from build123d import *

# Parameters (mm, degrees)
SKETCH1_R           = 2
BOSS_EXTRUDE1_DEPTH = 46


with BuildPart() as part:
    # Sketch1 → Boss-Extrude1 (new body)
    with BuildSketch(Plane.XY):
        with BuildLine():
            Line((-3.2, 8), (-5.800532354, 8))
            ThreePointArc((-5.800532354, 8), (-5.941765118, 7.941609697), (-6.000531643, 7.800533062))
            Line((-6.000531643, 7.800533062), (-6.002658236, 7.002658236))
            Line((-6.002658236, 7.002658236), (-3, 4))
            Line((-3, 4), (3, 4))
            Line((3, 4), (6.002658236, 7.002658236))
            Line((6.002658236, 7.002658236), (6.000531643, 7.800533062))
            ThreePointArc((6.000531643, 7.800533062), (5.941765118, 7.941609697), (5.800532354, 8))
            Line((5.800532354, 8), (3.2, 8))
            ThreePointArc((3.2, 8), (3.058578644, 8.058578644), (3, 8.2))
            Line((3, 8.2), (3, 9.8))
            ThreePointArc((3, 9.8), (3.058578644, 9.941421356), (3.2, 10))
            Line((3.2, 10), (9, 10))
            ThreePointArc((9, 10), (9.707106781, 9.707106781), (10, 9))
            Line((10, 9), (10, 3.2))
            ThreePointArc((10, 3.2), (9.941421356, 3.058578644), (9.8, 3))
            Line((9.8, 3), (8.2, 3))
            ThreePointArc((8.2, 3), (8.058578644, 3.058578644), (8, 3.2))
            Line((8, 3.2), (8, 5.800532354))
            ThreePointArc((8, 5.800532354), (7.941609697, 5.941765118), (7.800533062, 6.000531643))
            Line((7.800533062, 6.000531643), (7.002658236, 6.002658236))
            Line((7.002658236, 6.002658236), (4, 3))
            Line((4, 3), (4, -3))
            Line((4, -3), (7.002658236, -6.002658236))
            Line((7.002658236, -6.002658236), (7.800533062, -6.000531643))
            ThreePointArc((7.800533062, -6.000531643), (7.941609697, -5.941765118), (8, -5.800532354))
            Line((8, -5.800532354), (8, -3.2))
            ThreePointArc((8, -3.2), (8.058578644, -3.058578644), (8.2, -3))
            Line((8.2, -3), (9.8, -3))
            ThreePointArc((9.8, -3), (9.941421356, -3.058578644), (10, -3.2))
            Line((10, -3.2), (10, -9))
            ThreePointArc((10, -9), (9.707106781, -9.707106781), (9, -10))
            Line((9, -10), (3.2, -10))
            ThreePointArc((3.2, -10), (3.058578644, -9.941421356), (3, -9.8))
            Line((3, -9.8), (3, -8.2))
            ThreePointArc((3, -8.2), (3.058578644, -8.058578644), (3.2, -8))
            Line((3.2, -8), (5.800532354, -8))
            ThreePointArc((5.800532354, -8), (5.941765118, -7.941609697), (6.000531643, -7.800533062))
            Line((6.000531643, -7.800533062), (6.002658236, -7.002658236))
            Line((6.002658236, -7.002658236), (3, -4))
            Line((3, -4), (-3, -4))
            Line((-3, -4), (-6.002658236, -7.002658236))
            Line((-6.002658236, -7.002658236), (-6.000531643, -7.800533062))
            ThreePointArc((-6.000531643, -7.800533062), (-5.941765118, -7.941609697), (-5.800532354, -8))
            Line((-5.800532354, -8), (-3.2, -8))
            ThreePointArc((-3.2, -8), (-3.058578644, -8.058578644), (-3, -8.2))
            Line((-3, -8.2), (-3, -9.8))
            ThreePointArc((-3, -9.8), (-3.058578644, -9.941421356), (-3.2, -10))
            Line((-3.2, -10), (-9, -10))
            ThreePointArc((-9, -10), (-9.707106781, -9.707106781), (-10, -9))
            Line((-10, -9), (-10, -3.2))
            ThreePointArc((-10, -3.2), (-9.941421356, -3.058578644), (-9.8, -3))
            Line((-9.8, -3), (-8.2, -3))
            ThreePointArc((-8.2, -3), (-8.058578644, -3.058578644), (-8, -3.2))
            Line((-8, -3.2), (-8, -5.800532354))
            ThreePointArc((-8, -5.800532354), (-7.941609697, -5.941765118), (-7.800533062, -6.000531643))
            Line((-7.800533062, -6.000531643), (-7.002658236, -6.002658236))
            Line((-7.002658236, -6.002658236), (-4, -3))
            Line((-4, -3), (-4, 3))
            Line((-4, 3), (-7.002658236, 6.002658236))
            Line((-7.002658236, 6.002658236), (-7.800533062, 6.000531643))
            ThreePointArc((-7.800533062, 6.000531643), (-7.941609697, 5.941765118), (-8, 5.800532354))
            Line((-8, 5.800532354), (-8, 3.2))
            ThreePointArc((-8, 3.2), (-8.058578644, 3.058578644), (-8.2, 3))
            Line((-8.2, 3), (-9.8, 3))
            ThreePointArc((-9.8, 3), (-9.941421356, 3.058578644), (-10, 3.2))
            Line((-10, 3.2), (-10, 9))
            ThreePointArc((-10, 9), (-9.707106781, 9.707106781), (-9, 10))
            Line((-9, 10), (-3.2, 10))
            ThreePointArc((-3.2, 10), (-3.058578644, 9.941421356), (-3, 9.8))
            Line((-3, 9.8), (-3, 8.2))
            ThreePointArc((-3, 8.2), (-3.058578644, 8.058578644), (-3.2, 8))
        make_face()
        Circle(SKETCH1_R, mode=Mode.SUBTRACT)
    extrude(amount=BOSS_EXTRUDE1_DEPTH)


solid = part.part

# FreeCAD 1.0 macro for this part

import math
import FreeCAD as App
import Part
import Sketcher

V = App.Vector

doc = App.newDocument("Part")
body = doc.addObject("PartDesign::Body", "Body")

sketch1 = doc.addObject("Sketcher::SketchObject", "Sketch")
body.addObject(sketch1)
sketch1.AttachmentSupport = (doc.XY_Plane, [""])
sketch1.MapMode = "FlatFace"
sketch1.addGeometry([
    Part.LineSegment(V(-5.800532, 8, 0), V(-3.2, 8, 0)),
    Part.ArcOfCircle(Part.Circle(V(-3.2, 8.2, 0), V(0, 0, 1), 0.2), math.radians(-90), math.radians(0)),
    Part.LineSegment(V(-3, 8.2, 0), V(-3, 9.8, 0)),
    Part.ArcOfCircle(Part.Circle(V(-3.2, 9.8, 0), V(0, 0, 1), 0.2), math.radians(0), math.radians(90)),
    Part.LineSegment(V(-3.2, 10, 0), V(-9, 10, 0)),
    Part.ArcOfCircle(Part.Circle(V(-9, 9, 0), V(0, 0, 1), 1), math.radians(90), math.radians(180)),
    Part.LineSegment(V(-10, 9, 0), V(-10, 3.2, 0)),
    Part.ArcOfCircle(Part.Circle(V(-9.8, 3.2, 0), V(0, 0, 1), 0.2), math.radians(-180), math.radians(-90)),
    Part.LineSegment(V(-9.8, 3, 0), V(-8.2, 3, 0)),
    Part.ArcOfCircle(Part.Circle(V(-8.2, 3.2, 0), V(0, 0, 1), 0.2), math.radians(-90), math.radians(0)),
    Part.LineSegment(V(-8, 3.2, 0), V(-8, 5.800532, 0)),
    Part.ArcOfCircle(Part.Circle(V(-7.8, 5.800532, 0), V(0, 0, 1), 0.2), math.radians(90.152711), math.radians(180)),
    Part.LineSegment(V(-7.800533, 6.000532, 0), V(-7.002658, 6.002658, 0)),
    Part.LineSegment(V(-7.002658, 6.002658, 0), V(-4, 3, 0)),
    Part.LineSegment(V(-4, 3, 0), V(-4, -3, 0)),
    Part.LineSegment(V(-4, -3, 0), V(-7.002658, -6.002658, 0)),
    Part.LineSegment(V(-7.002658, -6.002658, 0), V(-7.800533, -6.000532, 0)),
    Part.ArcOfCircle(Part.Circle(V(-7.8, -5.800532, 0), V(0, 0, 1), 0.2), math.radians(180), math.radians(269.847289)),
    Part.LineSegment(V(-8, -5.800532, 0), V(-8, -3.2, 0)),
    Part.ArcOfCircle(Part.Circle(V(-8.2, -3.2, 0), V(0, 0, 1), 0.2), math.radians(0), math.radians(90)),
    Part.LineSegment(V(-8.2, -3, 0), V(-9.8, -3, 0)),
    Part.ArcOfCircle(Part.Circle(V(-9.8, -3.2, 0), V(0, 0, 1), 0.2), math.radians(90), math.radians(180)),
    Part.LineSegment(V(-10, -3.2, 0), V(-10, -9, 0)),
    Part.ArcOfCircle(Part.Circle(V(-9, -9, 0), V(0, 0, 1), 1), math.radians(-180), math.radians(-90)),
    Part.LineSegment(V(-9, -10, 0), V(-3.2, -10, 0)),
    Part.ArcOfCircle(Part.Circle(V(-3.2, -9.8, 0), V(0, 0, 1), 0.2), math.radians(-90), math.radians(0)),
    Part.LineSegment(V(-3, -9.8, 0), V(-3, -8.2, 0)),
    Part.ArcOfCircle(Part.Circle(V(-3.2, -8.2, 0), V(0, 0, 1), 0.2), math.radians(0), math.radians(90)),
    Part.LineSegment(V(-3.2, -8, 0), V(-5.800532, -8, 0)),
    Part.ArcOfCircle(Part.Circle(V(-5.800532, -7.8, 0), V(0, 0, 1), 0.2), math.radians(-179.847289), math.radians(-90)),
    Part.LineSegment(V(-6.000532, -7.800533, 0), V(-6.002658, -7.002658, 0)),
    Part.LineSegment(V(-6.002658, -7.002658, 0), V(-3, -4, 0)),
    Part.LineSegment(V(-3, -4, 0), V(3, -4, 0)),
    Part.LineSegment(V(3, -4, 0), V(6.002658, -7.002658, 0)),
    Part.LineSegment(V(6.002658, -7.002658, 0), V(6.000532, -7.800533, 0)),
    Part.ArcOfCircle(Part.Circle(V(5.800532, -7.8, 0), V(0, 0, 1), 0.2), math.radians(-90), math.radians(-0.152711)),
    Part.LineSegment(V(5.800532, -8, 0), V(3.2, -8, 0)),
    Part.ArcOfCircle(Part.Circle(V(3.2, -8.2, 0), V(0, 0, 1), 0.2), math.radians(90), math.radians(180)),
    Part.LineSegment(V(3, -8.2, 0), V(3, -9.8, 0)),
    Part.ArcOfCircle(Part.Circle(V(3.2, -9.8, 0), V(0, 0, 1), 0.2), math.radians(-180), math.radians(-90)),
    Part.LineSegment(V(3.2, -10, 0), V(9, -10, 0)),
    Part.ArcOfCircle(Part.Circle(V(9, -9, 0), V(0, 0, 1), 1), math.radians(-90), math.radians(0)),
    Part.LineSegment(V(10, -9, 0), V(10, -3.2, 0)),
    Part.ArcOfCircle(Part.Circle(V(9.8, -3.2, 0), V(0, 0, 1), 0.2), math.radians(0), math.radians(90)),
    Part.LineSegment(V(9.8, -3, 0), V(8.2, -3, 0)),
    Part.ArcOfCircle(Part.Circle(V(8.2, -3.2, 0), V(0, 0, 1), 0.2), math.radians(90), math.radians(180)),
    Part.LineSegment(V(8, -3.2, 0), V(8, -5.800532, 0)),
    Part.ArcOfCircle(Part.Circle(V(7.8, -5.800532, 0), V(0, 0, 1), 0.2), math.radians(-89.847289), math.radians(0)),
    Part.LineSegment(V(7.800533, -6.000532, 0), V(7.002658, -6.002658, 0)),
    Part.LineSegment(V(7.002658, -6.002658, 0), V(4, -3, 0)),
    Part.LineSegment(V(4, -3, 0), V(4, 3, 0)),
    Part.LineSegment(V(4, 3, 0), V(7.002658, 6.002658, 0)),
    Part.LineSegment(V(7.002658, 6.002658, 0), V(7.800533, 6.000532, 0)),
    Part.ArcOfCircle(Part.Circle(V(7.8, 5.800532, 0), V(0, 0, 1), 0.2), math.radians(0), math.radians(89.847289)),
    Part.LineSegment(V(8, 5.800532, 0), V(8, 3.2, 0)),
    Part.ArcOfCircle(Part.Circle(V(8.2, 3.2, 0), V(0, 0, 1), 0.2), math.radians(-180), math.radians(-90)),
    Part.LineSegment(V(8.2, 3, 0), V(9.8, 3, 0)),
    Part.ArcOfCircle(Part.Circle(V(9.8, 3.2, 0), V(0, 0, 1), 0.2), math.radians(-90), math.radians(0)),
    Part.LineSegment(V(10, 3.2, 0), V(10, 9, 0)),
    Part.ArcOfCircle(Part.Circle(V(9, 9, 0), V(0, 0, 1), 1), math.radians(0), math.radians(90)),
    Part.LineSegment(V(9, 10, 0), V(3.2, 10, 0)),
    Part.ArcOfCircle(Part.Circle(V(3.2, 9.8, 0), V(0, 0, 1), 0.2), math.radians(90), math.radians(180)),
    Part.LineSegment(V(3, 9.8, 0), V(3, 8.2, 0)),
    Part.ArcOfCircle(Part.Circle(V(3.2, 8.2, 0), V(0, 0, 1), 0.2), math.radians(-180), math.radians(-90)),
    Part.LineSegment(V(3.2, 8, 0), V(5.800532, 8, 0)),
    Part.ArcOfCircle(Part.Circle(V(5.800532, 7.8, 0), V(0, 0, 1), 0.2), math.radians(0.152711), math.radians(90)),
    Part.LineSegment(V(6.000532, 7.800533, 0), V(6.002658, 7.002658, 0)),
    Part.LineSegment(V(6.002658, 7.002658, 0), V(3, 4, 0)),
    Part.LineSegment(V(3, 4, 0), V(-3, 4, 0)),
    Part.LineSegment(V(-3, 4, 0), V(-6.002658, 7.002658, 0)),
    Part.LineSegment(V(-6.002658, 7.002658, 0), V(-6.000532, 7.800533, 0)),
    Part.ArcOfCircle(Part.Circle(V(-5.800532, 7.8, 0), V(0, 0, 1), 0.2), math.radians(90), math.radians(179.847289)),
    Part.Circle(V(0, 0, 0), V(0, 0, 1), 2),
], False)
sketch1.addConstraint([
    Sketcher.Constraint("Tangent", 0, 2, 1, 1),
    Sketcher.Constraint("Tangent", 1, 2, 2, 1),
    Sketcher.Constraint("Tangent", 2, 2, 3, 1),
    Sketcher.Constraint("Tangent", 3, 2, 4, 1),
    Sketcher.Constraint("Tangent", 4, 2, 5, 1),
    Sketcher.Constraint("Tangent", 5, 2, 6, 1),
    Sketcher.Constraint("Tangent", 6, 2, 7, 1),
    Sketcher.Constraint("Tangent", 7, 2, 8, 1),
    Sketcher.Constraint("Tangent", 8, 2, 9, 1),
    Sketcher.Constraint("Tangent", 9, 2, 10, 1),
    Sketcher.Constraint("Tangent", 10, 2, 11, 2),
    Sketcher.Constraint("Tangent", 11, 1, 12, 1),
    Sketcher.Constraint("Coincident", 12, 2, 13, 1),
    Sketcher.Constraint("Coincident", 13, 2, 14, 1),
    Sketcher.Constraint("Coincident", 14, 2, 15, 1),
    Sketcher.Constraint("Coincident", 15, 2, 16, 1),
    Sketcher.Constraint("Tangent", 16, 2, 17, 2),
    Sketcher.Constraint("Tangent", 17, 1, 18, 1),
    Sketcher.Constraint("Tangent", 18, 2, 19, 1),
    Sketcher.Constraint("Tangent", 19, 2, 20, 1),
    Sketcher.Constraint("Tangent", 20, 2, 21, 1),
    Sketcher.Constraint("Tangent", 21, 2, 22, 1),
    Sketcher.Constraint("Tangent", 22, 2, 23, 1),
    Sketcher.Constraint("Tangent", 23, 2, 24, 1),
    Sketcher.Constraint("Tangent", 24, 2, 25, 1),
    Sketcher.Constraint("Tangent", 25, 2, 26, 1),
    Sketcher.Constraint("Tangent", 26, 2, 27, 1),
    Sketcher.Constraint("Tangent", 27, 2, 28, 1),
    Sketcher.Constraint("Tangent", 28, 2, 29, 2),
    Sketcher.Constraint("Tangent", 29, 1, 30, 1),
    Sketcher.Constraint("Coincident", 30, 2, 31, 1),
    Sketcher.Constraint("Coincident", 31, 2, 32, 1),
    Sketcher.Constraint("Coincident", 32, 2, 33, 1),
    Sketcher.Constraint("Coincident", 33, 2, 34, 1),
    Sketcher.Constraint("Tangent", 34, 2, 35, 2),
    Sketcher.Constraint("Tangent", 35, 1, 36, 1),
    Sketcher.Constraint("Tangent", 36, 2, 37, 1),
    Sketcher.Constraint("Tangent", 37, 2, 38, 1),
    Sketcher.Constraint("Tangent", 38, 2, 39, 1),
    Sketcher.Constraint("Tangent", 39, 2, 40, 1),
    Sketcher.Constraint("Tangent", 40, 2, 41, 1),
    Sketcher.Constraint("Tangent", 41, 2, 42, 1),
    Sketcher.Constraint("Tangent", 42, 2, 43, 1),
    Sketcher.Constraint("Tangent", 43, 2, 44, 1),
    Sketcher.Constraint("Tangent", 44, 2, 45, 1),
    Sketcher.Constraint("Tangent", 45, 2, 46, 1),
    Sketcher.Constraint("Tangent", 46, 2, 47, 2),
    Sketcher.Constraint("Tangent", 47, 1, 48, 1),
    Sketcher.Constraint("Coincident", 48, 2, 49, 1),
    Sketcher.Constraint("Coincident", 49, 2, 50, 1),
    Sketcher.Constraint("Coincident", 50, 2, 51, 1),
    Sketcher.Constraint("Coincident", 51, 2, 52, 1),
    Sketcher.Constraint("Tangent", 52, 2, 53, 2),
    Sketcher.Constraint("Tangent", 53, 1, 54, 1),
    Sketcher.Constraint("Tangent", 54, 2, 55, 1),
    Sketcher.Constraint("Tangent", 55, 2, 56, 1),
    Sketcher.Constraint("Tangent", 56, 2, 57, 1),
    Sketcher.Constraint("Tangent", 57, 2, 58, 1),
    Sketcher.Constraint("Tangent", 58, 2, 59, 1),
    Sketcher.Constraint("Tangent", 59, 2, 60, 1),
    Sketcher.Constraint("Tangent", 60, 2, 61, 1),
    Sketcher.Constraint("Tangent", 61, 2, 62, 1),
    Sketcher.Constraint("Tangent", 62, 2, 63, 1),
    Sketcher.Constraint("Tangent", 63, 2, 64, 1),
    Sketcher.Constraint("Tangent", 64, 2, 65, 2),
    Sketcher.Constraint("Tangent", 65, 1, 66, 1),
    Sketcher.Constraint("Coincident", 66, 2, 67, 1),
    Sketcher.Constraint("Coincident", 67, 2, 68, 1),
    Sketcher.Constraint("Coincident", 68, 2, 69, 1),
    Sketcher.Constraint("Coincident", 69, 2, 70, 1),
    Sketcher.Constraint("Tangent", 70, 2, 71, 2),
    Sketcher.Constraint("Tangent", 71, 1, 0, 1),
    Sketcher.Constraint("Horizontal", 0),
    Sketcher.Constraint("Vertical", 2),
    Sketcher.Constraint("Horizontal", 4),
    Sketcher.Constraint("Vertical", 6),
    Sketcher.Constraint("Horizontal", 8),
    Sketcher.Constraint("Vertical", 10),
    Sketcher.Constraint("Vertical", 14),
    Sketcher.Constraint("Vertical", 18),
    Sketcher.Constraint("Horizontal", 20),
    Sketcher.Constraint("Vertical", 22),
    Sketcher.Constraint("Horizontal", 24),
    Sketcher.Constraint("Vertical", 26),
    Sketcher.Constraint("Horizontal", 28),
    Sketcher.Constraint("Horizontal", 32),
    Sketcher.Constraint("Horizontal", 36),
    Sketcher.Constraint("Vertical", 38),
    Sketcher.Constraint("Horizontal", 40),
    Sketcher.Constraint("Vertical", 42),
    Sketcher.Constraint("Horizontal", 44),
    Sketcher.Constraint("Vertical", 46),
    Sketcher.Constraint("Vertical", 50),
    Sketcher.Constraint("Vertical", 54),
    Sketcher.Constraint("Horizontal", 56),
    Sketcher.Constraint("Vertical", 58),
    Sketcher.Constraint("Horizontal", 60),
    Sketcher.Constraint("Vertical", 62),
    Sketcher.Constraint("Horizontal", 64),
    Sketcher.Constraint("Horizontal", 68),
    Sketcher.Constraint("Coincident", 72, 3, -1, 1),
    Sketcher.Constraint("Equal", 1, 3),
    Sketcher.Constraint("Equal", 3, 7),
    Sketcher.Constraint("Equal", 7, 9),
    Sketcher.Constraint("Equal", 9, 11),
    Sketcher.Constraint("Equal", 11, 17),
    Sketcher.Constraint("Equal", 17, 19),
    Sketcher.Constraint("Equal", 19, 21),
    Sketcher.Constraint("Equal", 5, 23),
    Sketcher.Constraint("Equal", 21, 25),
    Sketcher.Constraint("Equal", 25, 27),
    Sketcher.Constraint("Equal", 27, 29),
    Sketcher.Constraint("Equal", 29, 35),
    Sketcher.Constraint("Equal", 35, 37),
    Sketcher.Constraint("Equal", 37, 39),
    Sketcher.Constraint("Equal", 23, 41),
    Sketcher.Constraint("Equal", 39, 43),
    Sketcher.Constraint("Equal", 43, 45),
    Sketcher.Constraint("Equal", 45, 47),
    Sketcher.Constraint("Equal", 47, 53),
    Sketcher.Constraint("Equal", 53, 55),
    Sketcher.Constraint("Equal", 55, 57),
    Sketcher.Constraint("Equal", 41, 59),
    Sketcher.Constraint("Equal", 57, 61),
    Sketcher.Constraint("Equal", 61, 63),
    Sketcher.Constraint("Equal", 63, 65),
    Sketcher.Constraint("Equal", 65, 71),
    Sketcher.Constraint("Symmetric", 1, 3, 37, 3, -1, 1),
    Sketcher.Constraint("Symmetric", 5, 3, 41, 3, -1, 1),
    Sketcher.Constraint("Symmetric", 9, 3, 45, 3, -1, 1),
    Sketcher.Constraint("Symmetric", 17, 3, 53, 3, -1, 1),
    Sketcher.Constraint("Symmetric", 21, 3, 57, 3, -1, 1),
    Sketcher.Constraint("Symmetric", 25, 3, 61, 3, -1, 1),
    Sketcher.Constraint("Symmetric", 29, 3, 65, 3, -1, 1),
    Sketcher.Constraint("Symmetric", 11, 1, 47, 1, -1, 1),
    Sketcher.Constraint("Symmetric", 13, 2, 49, 2, -1, 1),
    Sketcher.Constraint("Symmetric", 15, 2, 51, 2, -1, 1),
    Sketcher.Constraint("Symmetric", 30, 2, 66, 2, -1, 1),
    Sketcher.Constraint("Symmetric", 31, 2, 67, 2, -1, 1),
    Sketcher.Constraint("Symmetric", 33, 2, 69, 2, -1, 1),
    Sketcher.Constraint("Symmetric", 29, 3, 35, 3, -2),
    Sketcher.Constraint("Symmetric", 25, 3, 39, 3, -2),
    Sketcher.Constraint("Symmetric", 21, 3, 43, 3, -2),
    Sketcher.Constraint("Symmetric", 17, 3, 47, 3, -2),
    Sketcher.Constraint("Symmetric", 30, 2, 33, 2, -2),
    Sketcher.Constraint("Symmetric", 15, 2, 48, 2, -2),
    Sketcher.Constraint("Perpendicular", 13, 15),
    Sketcher.Constraint("Perpendicular", 12, 30),
    Sketcher.Constraint("Parallel", 15, 31),
    Sketcher.Constraint("Perpendicular", 31, 33),
    Sketcher.Constraint("Parallel", 33, 49),
    Sketcher.Constraint("Perpendicular", 49, 51),
    Sketcher.Constraint("Perpendicular", 67, 69),
    Sketcher.Constraint("Perpendicular", 52, 70),
    Sketcher.Constraint("Horizontal", 8, 2, 13, 2),
    Sketcher.Constraint("Horizontal", 14, 2, 19, 2),
    Sketcher.Constraint("Vertical", 26, 2, 31, 2),
    Sketcher.Constraint("Equal", 56, 2),
    Sketcher.Constraint("Equal", 60, 6),
    Sketcher.Constraint("Equal", 64, 10),
    Sketcher.Constraint("Equal", 68, 14),
    Sketcher.Constraint("Equal", 16, 30),
    Sketcher.Constraint("Diameter", 72, 4.0),
    Sketcher.Constraint("Radius", 5, 1.0),
    Sketcher.Constraint("Radius", 1, 0.2),
    Sketcher.Constraint("DistanceX", 32, 1, 32, 2, 6.0),
    Sketcher.Constraint("DistanceX", 4, 2, 4, 1, 5.8),
    Sketcher.Constraint("DistanceX", 8, 1, 8, 2, 1.6),
    Sketcher.Constraint("DistanceX", 13, 2, -1, 1, 4.0),
    Sketcher.Constraint("Distance", 13, 4.2464),
    Sketcher.Constraint("DistanceX", 0, 1, 0, 2, 2.600532),
])
pad1 = doc.addObject("PartDesign::Pad", "Pad")
body.addObject(pad1)
pad1.Profile = sketch1
pad1.Length = 46

doc.recompute()
